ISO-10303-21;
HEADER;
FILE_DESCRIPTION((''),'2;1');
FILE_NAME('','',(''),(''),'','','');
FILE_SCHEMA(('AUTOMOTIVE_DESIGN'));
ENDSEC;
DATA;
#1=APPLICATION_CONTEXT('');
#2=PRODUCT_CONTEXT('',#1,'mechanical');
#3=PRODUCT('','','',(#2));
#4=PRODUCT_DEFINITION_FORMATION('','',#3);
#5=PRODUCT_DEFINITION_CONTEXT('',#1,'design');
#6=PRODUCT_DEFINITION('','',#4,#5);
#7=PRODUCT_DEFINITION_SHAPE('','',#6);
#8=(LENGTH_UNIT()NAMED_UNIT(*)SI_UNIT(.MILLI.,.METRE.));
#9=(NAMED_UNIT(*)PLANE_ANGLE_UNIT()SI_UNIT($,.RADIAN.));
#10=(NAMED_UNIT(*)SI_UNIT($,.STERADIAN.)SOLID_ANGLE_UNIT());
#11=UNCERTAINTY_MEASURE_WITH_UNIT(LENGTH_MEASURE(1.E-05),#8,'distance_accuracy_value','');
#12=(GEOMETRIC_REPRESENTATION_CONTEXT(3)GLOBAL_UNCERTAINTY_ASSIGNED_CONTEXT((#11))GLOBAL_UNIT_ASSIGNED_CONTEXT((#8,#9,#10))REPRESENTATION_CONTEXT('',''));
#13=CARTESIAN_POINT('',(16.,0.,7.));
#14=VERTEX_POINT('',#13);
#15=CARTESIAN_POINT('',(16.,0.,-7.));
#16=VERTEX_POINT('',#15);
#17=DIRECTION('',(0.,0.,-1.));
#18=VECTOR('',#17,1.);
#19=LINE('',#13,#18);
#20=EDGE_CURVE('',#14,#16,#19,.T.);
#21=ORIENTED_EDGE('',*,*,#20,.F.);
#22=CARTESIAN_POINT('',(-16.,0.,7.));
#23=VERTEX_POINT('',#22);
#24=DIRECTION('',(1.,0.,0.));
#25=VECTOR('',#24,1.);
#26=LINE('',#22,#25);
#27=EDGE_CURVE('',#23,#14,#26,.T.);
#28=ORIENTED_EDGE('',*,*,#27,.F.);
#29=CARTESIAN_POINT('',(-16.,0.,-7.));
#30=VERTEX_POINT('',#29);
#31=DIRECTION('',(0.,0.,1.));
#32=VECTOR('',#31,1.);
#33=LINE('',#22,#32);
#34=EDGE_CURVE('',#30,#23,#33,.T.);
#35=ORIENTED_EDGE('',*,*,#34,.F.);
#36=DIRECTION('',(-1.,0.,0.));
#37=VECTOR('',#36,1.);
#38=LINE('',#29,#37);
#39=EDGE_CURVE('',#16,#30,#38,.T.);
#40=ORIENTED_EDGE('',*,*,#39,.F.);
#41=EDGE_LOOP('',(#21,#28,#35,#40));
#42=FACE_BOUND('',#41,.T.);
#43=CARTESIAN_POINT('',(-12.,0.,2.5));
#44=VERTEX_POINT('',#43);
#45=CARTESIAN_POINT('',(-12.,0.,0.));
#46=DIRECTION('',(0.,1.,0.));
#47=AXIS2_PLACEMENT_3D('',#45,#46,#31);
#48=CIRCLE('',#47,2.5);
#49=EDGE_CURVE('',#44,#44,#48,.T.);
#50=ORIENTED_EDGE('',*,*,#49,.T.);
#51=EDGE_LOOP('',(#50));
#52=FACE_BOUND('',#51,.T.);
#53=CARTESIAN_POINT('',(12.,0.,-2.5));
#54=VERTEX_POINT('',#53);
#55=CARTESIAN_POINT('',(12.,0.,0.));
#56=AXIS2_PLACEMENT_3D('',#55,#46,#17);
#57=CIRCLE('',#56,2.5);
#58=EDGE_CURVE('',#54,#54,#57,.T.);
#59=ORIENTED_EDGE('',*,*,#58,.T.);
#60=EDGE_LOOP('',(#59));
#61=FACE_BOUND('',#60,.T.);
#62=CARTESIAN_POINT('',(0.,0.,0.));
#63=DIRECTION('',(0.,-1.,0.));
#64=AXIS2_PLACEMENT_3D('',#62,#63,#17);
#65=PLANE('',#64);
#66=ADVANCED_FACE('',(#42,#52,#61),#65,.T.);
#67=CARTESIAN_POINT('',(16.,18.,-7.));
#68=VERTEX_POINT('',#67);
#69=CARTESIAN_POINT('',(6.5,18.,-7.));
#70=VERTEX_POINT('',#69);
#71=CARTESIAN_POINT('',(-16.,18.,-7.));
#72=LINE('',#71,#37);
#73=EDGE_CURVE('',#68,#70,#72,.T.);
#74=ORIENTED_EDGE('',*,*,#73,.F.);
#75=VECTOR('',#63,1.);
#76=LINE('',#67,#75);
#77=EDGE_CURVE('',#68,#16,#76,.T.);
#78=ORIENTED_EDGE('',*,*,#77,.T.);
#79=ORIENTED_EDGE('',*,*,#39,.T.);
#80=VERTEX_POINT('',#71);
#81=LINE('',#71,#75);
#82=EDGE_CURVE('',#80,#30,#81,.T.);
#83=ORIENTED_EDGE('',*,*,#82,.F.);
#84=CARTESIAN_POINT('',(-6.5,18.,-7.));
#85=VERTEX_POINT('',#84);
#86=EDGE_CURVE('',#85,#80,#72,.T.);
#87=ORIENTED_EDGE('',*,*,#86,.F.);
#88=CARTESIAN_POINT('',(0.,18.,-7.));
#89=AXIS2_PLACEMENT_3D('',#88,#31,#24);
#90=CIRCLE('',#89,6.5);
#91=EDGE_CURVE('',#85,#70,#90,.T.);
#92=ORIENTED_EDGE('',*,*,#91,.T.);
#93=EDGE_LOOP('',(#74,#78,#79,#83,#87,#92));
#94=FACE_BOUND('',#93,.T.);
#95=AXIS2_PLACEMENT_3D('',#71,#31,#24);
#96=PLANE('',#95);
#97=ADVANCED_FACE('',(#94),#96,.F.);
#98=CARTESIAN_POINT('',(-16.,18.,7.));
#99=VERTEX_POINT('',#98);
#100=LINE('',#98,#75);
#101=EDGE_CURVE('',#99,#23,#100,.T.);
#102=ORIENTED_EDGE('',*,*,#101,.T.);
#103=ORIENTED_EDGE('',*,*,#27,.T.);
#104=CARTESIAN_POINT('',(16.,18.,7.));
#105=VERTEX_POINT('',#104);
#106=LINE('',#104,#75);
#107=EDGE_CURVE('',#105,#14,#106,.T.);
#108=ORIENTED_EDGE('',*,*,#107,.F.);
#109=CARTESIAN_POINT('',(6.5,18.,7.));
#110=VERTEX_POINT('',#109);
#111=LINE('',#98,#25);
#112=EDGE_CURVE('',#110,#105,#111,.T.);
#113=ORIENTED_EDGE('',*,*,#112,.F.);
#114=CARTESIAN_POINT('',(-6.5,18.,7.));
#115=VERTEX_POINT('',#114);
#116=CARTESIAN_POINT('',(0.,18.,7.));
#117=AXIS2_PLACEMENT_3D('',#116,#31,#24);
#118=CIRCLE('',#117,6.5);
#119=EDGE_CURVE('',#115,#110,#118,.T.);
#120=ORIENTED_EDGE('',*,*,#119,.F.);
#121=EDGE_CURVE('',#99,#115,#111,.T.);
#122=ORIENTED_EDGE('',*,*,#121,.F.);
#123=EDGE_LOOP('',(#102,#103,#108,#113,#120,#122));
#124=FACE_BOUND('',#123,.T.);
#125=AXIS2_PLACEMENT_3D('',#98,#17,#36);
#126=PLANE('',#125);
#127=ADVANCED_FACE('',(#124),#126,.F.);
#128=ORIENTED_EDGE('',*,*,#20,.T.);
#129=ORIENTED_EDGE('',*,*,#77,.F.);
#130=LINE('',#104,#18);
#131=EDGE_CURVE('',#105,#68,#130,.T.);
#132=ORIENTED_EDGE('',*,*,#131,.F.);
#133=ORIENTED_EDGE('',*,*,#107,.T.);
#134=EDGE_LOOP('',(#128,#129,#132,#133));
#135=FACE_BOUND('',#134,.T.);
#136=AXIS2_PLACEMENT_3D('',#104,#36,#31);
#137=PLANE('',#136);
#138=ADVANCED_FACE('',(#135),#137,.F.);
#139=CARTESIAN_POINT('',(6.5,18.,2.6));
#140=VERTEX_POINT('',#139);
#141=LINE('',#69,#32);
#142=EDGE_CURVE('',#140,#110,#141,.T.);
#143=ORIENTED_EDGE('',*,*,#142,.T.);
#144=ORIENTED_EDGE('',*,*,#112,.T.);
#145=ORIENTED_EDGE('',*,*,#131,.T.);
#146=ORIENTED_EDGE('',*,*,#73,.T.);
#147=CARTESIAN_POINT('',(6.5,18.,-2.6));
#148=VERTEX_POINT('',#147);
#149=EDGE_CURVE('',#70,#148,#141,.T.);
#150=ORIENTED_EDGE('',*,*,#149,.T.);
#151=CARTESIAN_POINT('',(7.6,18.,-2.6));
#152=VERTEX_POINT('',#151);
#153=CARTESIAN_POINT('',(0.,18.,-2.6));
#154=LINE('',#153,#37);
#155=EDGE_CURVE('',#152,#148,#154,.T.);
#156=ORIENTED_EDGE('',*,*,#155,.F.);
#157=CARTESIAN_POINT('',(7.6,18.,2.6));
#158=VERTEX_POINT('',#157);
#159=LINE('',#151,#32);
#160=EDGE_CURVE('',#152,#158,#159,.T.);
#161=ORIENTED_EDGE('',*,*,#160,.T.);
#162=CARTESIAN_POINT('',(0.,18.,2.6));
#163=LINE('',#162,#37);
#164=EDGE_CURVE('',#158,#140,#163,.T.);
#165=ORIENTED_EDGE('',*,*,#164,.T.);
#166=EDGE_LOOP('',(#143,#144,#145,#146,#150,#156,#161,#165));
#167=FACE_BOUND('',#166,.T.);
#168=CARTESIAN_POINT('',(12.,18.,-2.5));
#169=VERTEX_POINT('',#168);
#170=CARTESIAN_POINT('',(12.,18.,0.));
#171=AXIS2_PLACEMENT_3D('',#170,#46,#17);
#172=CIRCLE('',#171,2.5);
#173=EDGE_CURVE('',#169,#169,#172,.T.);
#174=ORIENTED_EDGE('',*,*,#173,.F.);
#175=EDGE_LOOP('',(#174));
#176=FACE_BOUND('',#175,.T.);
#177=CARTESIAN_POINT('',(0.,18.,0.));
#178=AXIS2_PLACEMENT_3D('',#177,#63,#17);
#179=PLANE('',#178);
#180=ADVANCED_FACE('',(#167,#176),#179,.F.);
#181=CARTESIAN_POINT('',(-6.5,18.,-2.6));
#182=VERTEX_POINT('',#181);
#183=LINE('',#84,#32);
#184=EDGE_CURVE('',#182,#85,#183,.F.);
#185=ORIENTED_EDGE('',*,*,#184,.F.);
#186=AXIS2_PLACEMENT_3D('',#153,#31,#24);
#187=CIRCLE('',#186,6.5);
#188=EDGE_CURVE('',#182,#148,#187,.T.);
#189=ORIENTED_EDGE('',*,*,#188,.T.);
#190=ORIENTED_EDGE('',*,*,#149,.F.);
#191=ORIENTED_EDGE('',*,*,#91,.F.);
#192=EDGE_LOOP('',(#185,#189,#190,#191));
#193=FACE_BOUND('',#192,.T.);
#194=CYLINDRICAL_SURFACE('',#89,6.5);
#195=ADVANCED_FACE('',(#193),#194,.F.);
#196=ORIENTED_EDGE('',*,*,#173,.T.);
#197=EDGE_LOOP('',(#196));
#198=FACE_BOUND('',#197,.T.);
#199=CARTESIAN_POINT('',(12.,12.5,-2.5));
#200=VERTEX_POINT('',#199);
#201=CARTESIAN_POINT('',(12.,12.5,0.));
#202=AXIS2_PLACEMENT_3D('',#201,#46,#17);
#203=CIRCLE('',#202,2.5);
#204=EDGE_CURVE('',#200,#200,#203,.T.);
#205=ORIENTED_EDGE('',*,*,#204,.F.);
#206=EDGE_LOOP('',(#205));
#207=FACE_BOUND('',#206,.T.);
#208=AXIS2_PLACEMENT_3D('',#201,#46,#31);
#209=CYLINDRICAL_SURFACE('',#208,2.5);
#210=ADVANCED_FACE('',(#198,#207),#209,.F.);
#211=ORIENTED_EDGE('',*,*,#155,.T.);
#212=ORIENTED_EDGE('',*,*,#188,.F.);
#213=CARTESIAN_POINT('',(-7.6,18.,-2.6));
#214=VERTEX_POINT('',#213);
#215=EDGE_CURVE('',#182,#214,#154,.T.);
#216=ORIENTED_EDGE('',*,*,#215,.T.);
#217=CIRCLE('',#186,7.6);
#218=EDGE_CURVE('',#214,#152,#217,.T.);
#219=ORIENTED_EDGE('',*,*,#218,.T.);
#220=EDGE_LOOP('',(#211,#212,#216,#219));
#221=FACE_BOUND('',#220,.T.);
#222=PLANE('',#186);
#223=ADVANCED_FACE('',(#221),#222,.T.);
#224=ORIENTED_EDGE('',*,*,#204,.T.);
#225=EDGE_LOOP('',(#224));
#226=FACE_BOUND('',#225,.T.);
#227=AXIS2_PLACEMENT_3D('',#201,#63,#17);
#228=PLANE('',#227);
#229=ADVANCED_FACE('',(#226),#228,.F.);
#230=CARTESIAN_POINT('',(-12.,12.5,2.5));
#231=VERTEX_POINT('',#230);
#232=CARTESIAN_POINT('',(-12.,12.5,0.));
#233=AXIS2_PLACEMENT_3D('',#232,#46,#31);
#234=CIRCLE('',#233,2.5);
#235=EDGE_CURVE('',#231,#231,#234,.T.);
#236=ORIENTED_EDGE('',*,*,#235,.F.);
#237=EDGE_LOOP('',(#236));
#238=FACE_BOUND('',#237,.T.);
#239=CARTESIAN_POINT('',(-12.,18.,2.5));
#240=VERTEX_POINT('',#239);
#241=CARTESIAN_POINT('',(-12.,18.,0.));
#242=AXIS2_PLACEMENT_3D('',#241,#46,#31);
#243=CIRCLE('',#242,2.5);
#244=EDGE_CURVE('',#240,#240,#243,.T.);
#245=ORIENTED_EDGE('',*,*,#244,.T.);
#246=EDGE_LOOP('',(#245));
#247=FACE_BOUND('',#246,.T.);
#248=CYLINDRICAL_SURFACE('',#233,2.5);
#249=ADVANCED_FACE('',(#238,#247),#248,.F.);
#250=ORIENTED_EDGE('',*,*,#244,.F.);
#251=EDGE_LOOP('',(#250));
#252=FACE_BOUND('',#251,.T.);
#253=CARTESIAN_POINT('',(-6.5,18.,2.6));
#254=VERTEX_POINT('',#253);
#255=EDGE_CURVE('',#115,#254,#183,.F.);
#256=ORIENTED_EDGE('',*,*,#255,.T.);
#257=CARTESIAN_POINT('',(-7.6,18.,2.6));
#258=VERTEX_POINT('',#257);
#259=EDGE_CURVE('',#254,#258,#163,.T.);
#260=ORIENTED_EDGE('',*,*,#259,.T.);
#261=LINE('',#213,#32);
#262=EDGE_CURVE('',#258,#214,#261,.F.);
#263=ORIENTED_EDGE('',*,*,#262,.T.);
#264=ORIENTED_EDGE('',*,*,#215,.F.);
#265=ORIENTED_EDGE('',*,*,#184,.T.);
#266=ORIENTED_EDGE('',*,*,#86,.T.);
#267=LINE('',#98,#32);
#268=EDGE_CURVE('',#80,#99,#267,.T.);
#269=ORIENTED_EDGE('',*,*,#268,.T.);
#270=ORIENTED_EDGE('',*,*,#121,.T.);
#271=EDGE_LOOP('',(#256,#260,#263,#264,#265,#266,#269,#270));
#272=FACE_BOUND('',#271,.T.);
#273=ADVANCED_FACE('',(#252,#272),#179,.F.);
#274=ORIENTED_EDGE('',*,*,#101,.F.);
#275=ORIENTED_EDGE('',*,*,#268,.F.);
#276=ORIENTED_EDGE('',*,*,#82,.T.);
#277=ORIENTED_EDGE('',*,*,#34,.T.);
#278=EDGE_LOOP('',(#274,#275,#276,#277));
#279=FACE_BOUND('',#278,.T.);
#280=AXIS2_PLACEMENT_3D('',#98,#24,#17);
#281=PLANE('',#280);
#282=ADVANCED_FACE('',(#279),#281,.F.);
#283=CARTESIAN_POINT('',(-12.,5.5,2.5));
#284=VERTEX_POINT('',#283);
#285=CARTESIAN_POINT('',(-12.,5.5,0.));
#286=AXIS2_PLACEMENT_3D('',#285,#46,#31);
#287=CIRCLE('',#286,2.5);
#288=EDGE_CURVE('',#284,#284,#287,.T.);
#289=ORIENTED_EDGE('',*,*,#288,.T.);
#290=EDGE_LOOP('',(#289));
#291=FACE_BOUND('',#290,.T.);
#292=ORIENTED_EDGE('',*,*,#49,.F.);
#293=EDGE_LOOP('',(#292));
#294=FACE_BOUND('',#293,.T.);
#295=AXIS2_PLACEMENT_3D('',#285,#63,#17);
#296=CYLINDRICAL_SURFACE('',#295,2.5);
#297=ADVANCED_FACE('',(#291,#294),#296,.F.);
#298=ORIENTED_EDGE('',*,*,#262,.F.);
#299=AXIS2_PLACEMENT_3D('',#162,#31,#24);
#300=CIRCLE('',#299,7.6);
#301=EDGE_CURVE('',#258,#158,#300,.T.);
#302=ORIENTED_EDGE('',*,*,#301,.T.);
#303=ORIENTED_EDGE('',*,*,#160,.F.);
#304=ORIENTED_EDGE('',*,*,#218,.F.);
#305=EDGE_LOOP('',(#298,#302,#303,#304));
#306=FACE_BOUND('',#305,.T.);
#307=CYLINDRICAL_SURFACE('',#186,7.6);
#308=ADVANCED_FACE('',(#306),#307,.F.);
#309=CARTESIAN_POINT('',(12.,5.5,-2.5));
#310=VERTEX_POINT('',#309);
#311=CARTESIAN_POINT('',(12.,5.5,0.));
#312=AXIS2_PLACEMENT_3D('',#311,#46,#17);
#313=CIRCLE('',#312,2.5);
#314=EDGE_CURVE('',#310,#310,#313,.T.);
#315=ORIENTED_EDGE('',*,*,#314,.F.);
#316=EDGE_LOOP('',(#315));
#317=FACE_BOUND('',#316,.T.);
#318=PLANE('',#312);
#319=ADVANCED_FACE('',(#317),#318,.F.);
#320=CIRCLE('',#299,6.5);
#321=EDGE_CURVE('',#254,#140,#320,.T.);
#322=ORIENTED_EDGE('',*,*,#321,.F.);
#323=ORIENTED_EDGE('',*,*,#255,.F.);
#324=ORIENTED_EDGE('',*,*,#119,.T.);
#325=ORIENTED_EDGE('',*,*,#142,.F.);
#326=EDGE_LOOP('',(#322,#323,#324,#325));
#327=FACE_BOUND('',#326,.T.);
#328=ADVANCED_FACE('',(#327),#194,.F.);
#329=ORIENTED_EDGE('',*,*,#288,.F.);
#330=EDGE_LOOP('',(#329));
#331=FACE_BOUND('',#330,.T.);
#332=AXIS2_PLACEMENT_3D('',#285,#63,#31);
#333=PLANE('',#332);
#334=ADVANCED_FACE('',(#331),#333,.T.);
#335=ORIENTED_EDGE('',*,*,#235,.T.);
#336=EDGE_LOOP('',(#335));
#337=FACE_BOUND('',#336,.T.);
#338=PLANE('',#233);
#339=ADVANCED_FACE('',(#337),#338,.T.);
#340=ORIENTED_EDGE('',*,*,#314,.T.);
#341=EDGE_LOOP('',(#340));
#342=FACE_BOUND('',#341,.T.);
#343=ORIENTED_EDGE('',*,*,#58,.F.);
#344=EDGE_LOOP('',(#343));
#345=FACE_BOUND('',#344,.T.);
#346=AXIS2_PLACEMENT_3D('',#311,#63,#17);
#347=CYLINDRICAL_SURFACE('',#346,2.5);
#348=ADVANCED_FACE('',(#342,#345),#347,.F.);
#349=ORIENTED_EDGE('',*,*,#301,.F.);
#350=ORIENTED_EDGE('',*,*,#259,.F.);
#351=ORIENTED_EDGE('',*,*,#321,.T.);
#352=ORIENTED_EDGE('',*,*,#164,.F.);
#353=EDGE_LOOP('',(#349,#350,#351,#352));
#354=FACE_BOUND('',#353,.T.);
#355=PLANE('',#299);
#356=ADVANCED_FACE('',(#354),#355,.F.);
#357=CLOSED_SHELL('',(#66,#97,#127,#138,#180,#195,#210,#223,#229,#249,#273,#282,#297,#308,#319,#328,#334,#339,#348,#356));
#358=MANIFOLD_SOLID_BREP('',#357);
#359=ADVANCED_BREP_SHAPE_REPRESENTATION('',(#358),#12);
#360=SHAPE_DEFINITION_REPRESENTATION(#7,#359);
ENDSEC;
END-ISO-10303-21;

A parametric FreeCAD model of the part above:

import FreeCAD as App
import Part
import Sketcher

V = App.Vector
Q = App.Units.Quantity

doc = App.newDocument("Part")
body = doc.addObject("PartDesign::Body", "Body")

# Sketch on XZ plane
sketch1 = body.newObject("Sketcher::SketchObject", "Sketch")
sketch1.AttachmentSupport = (doc.getObject("XZ_Plane"), [""])
sketch1.MapMode = "FlatFace"
sketch1.addGeometry([
    Part.LineSegment(V(-16, -7, 0), V(-16, 7, 0)),
    Part.LineSegment(V(-16, 7, 0), V(16, 7, 0)),
    Part.LineSegment(V(16, 7, 0), V(16, -7, 0)),
    Part.LineSegment(V(16, -7, 0), V(-16, -7, 0)),
], False)
sketch1.addConstraint([
    Sketcher.Constraint("Coincident", 0, 2, 1, 1),
    Sketcher.Constraint("Coincident", 1, 2, 2, 1),
    Sketcher.Constraint("Coincident", 2, 2, 3, 1),
    Sketcher.Constraint("Coincident", 3, 2, 0, 1),
    Sketcher.Constraint("Vertical", 0),
    Sketcher.Constraint("Horizontal", 1),
    Sketcher.Constraint("Vertical", 2),
    Sketcher.Constraint("Horizontal", 3),
    Sketcher.Constraint("Symmetric", 0, 2, 2, 2, -1, 1),
    Sketcher.Constraint("DistanceX", 1, 1, 1, 2, Q("32 mm")),
    Sketcher.Constraint("DistanceY", 0, 1, 0, 2, Q("14 mm")),
])
pad1 = body.newObject("PartDesign::Pad", "Pad")
pad1.Profile = sketch1
pad1.Length = 18
pad1.Reversed = True

# Sketch on XY plane
sketch2 = body.newObject("Sketcher::SketchObject", "Sketch001")
sketch2.AttachmentSupport = (doc.getObject("XY_Plane"), [""])
sketch2.MapMode = "FlatFace"
sketch2.addGeometry(Part.Circle(V(0, 18, 0), V(0, 0, 1), 8), False)
sketch2.addConstraint([
    Sketcher.Constraint("PointOnObject", 0, 3, -2),
    Sketcher.Constraint("Diameter", 0, Q("15.2 mm")),
    Sketcher.Constraint("DistanceY", -1, 1, 0, 3, Q("18 mm")),
])
pocket1 = body.newObject("PartDesign::Pocket", "Pocket")
pocket1.Profile = sketch2
pocket1.Length = 5.2
pocket1.Midplane = True

# Sketch on XY plane
sketch3 = body.newObject("Sketcher::SketchObject", "Sketch002")
sketch3.AttachmentSupport = (doc.getObject("XY_Plane"), [""])
sketch3.MapMode = "FlatFace"
sketch3.addGeometry(Part.Circle(V(0, 18, 0), V(0, 0, 1), 6), False)
sketch3.addConstraint([
    Sketcher.Constraint("PointOnObject", 0, 3, -2),
    Sketcher.Constraint("Diameter", 0, Q("13 mm")),
    Sketcher.Constraint("DistanceY", -1, 1, 0, 3, Q("18 mm")),
])
pocket2 = body.newObject("PartDesign::Pocket", "Pocket001")
pocket2.Profile = sketch3
pocket2.Type = "ThroughAll"
pocket2.Midplane = True

# Sketch on XZ plane
sketch4 = body.newObject("Sketcher::SketchObject", "Sketch003")
sketch4.AttachmentSupport = (doc.getObject("XZ_Plane"), [""])
sketch4.MapMode = "FlatFace"
sketch4.AttachmentOffset = App.Placement(V(0, 0, -18), App.Rotation())
sketch4.addGeometry([
    Part.Circle(V(-12, 0, 0), V(0, 0, 1), 2.5),
    Part.Circle(V(12, 0, 0), V(0, 0, 1), 2.5),
], False)
sketch4.addConstraint([
    Sketcher.Constraint("Equal", 0, 1),
    Sketcher.Constraint("Symmetric", 0, 3, 1, 3, -1, 1),
    Sketcher.Constraint("PointOnObject", 0, 3, -1),
    Sketcher.Constraint("Diameter", 0, Q("5 mm")),
    Sketcher.Constraint("DistanceX", 0, 3, -1, 1, Q("12 mm")),
])
pocket3 = body.newObject("PartDesign::Pocket", "Pocket002")
pocket3.Profile = sketch4
pocket3.Length = 5.5
pocket3.Reversed = True
doc.recompute()

datumplane = body.newObject("PartDesign::Plane", "DatumPlane")
datumplane.AttachmentSupport = (doc.getObject("XZ_Plane"), [""])
datumplane.MapMode = "FlatFace"
datumplane.AttachmentOffset = App.Placement(V(0, 0, -9), App.Rotation())
mirrored = body.newObject("PartDesign::Mirrored", "Mirrored")
mirrored.Originals = [pocket3]
mirrored.MirrorPlane = (datumplane, [""])
body.Tip = mirrored

doc.recompute()
